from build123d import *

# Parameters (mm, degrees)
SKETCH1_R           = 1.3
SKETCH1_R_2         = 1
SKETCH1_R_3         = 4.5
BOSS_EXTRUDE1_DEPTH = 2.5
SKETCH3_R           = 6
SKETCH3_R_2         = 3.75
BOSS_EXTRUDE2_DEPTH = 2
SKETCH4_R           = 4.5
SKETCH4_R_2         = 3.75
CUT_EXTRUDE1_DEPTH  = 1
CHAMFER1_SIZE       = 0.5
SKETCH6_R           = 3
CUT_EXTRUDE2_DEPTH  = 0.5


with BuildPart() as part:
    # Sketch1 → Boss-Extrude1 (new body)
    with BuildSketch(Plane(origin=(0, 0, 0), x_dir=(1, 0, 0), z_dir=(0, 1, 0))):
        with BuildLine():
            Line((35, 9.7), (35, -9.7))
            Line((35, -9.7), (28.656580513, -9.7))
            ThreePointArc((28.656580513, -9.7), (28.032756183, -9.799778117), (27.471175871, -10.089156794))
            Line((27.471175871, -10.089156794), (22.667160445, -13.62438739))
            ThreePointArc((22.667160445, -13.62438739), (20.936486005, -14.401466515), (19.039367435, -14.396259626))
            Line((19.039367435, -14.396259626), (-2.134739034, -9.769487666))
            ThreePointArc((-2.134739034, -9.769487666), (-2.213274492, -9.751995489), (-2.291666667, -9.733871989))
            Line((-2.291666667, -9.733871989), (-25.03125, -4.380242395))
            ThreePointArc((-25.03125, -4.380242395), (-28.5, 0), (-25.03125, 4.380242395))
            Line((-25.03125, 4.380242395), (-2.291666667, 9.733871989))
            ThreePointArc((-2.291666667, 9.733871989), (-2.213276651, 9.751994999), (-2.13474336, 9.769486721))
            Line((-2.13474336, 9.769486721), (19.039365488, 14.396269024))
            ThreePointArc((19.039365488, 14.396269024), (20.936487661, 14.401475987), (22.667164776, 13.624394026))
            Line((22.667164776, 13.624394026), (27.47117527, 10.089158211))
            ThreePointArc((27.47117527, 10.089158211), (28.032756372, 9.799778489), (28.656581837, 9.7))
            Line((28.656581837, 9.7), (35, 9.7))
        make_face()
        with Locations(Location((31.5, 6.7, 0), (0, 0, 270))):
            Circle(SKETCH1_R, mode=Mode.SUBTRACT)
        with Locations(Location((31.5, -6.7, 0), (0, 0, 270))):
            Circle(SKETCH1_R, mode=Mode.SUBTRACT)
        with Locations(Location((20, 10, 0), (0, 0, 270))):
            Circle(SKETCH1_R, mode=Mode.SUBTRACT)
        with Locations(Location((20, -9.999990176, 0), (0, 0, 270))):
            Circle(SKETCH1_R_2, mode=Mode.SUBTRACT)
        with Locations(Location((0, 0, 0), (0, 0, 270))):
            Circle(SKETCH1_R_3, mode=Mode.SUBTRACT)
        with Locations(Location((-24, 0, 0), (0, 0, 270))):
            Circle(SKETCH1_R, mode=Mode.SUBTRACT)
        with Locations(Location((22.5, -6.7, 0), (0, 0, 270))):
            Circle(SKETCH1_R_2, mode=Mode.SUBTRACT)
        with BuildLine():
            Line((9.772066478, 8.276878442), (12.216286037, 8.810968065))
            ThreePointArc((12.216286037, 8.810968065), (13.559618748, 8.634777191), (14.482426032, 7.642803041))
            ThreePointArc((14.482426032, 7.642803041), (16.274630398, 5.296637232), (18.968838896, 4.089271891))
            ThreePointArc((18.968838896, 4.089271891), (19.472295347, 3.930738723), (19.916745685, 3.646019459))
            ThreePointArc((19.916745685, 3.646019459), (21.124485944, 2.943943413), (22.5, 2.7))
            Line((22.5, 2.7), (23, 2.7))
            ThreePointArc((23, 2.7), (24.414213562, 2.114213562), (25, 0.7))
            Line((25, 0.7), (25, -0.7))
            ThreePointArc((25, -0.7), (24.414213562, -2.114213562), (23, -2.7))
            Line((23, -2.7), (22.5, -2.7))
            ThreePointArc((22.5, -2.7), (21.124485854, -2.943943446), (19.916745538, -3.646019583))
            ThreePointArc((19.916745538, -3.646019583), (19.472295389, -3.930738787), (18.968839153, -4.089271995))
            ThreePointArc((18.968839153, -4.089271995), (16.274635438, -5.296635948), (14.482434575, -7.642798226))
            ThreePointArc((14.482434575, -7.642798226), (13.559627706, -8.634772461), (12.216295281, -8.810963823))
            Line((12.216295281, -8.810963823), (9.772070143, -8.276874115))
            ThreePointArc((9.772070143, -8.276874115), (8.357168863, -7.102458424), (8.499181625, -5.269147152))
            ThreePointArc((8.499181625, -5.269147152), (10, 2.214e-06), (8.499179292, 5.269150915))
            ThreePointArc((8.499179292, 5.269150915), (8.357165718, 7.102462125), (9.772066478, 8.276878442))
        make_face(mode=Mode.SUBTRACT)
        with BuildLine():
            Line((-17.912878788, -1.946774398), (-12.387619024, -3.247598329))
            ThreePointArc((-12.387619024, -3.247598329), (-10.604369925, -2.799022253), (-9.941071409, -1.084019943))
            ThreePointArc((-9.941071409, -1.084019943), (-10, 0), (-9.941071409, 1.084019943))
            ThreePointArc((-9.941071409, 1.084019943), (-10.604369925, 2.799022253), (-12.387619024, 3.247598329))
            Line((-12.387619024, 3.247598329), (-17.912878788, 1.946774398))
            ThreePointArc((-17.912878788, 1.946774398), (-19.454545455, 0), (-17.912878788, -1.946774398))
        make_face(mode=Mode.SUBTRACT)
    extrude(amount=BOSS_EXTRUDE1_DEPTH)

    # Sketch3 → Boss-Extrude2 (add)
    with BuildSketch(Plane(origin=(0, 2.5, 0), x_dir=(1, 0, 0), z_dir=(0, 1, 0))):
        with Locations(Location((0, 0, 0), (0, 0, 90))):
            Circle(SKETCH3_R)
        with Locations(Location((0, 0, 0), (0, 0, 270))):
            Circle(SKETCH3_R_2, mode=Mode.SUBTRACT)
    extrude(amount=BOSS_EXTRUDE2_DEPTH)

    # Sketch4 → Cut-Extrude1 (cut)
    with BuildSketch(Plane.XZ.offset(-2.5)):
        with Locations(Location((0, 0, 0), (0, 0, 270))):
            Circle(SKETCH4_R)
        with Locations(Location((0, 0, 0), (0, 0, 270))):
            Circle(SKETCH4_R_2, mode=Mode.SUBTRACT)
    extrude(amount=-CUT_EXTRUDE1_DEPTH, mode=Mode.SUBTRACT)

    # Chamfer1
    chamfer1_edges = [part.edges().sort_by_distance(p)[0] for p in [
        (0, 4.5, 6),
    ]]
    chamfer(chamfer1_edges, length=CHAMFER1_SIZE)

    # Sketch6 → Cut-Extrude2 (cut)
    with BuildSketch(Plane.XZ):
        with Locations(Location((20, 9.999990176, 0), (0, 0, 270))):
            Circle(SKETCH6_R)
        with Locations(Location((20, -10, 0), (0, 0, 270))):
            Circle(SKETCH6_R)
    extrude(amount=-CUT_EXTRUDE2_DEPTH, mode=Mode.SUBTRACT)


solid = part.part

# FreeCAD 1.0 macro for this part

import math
import FreeCAD as App
import Part
import Sketcher

V = App.Vector


def edges_at(feature, points):
    """Names of the edges that pass closest to the given points."""
    edges = feature.Shape.Edges
    near = lambda p: min(range(len(edges)), key=lambda i: edges[i].distToShape(Part.Vertex(*p))[0])
    return sorted({f"Edge{near(p) + 1}" for p in points})

doc = App.newDocument("Part")
body = doc.addObject("PartDesign::Body", "Body")

# Sketch on XZ plane
sketch1 = body.newObject("Sketcher::SketchObject", "Sketch")
sketch1.AttachmentSupport = (doc.getObject("XZ_Plane"), [""])
sketch1.MapMode = "FlatFace"
sketch1.addGeometry(Part.LineSegment(V(35, 9.7, 0), V(35, -9.7, 0)), False)
sketch1.addGeometry(Part.LineSegment(V(35, -9.7, 0), V(28.656582, -9.7, 0)), False)
sketch1.addGeometry(Part.ArcOfCircle(Part.Circle(V(28.656582, -11.7, 0), V(0, 0, 1), 2), math.radians(90), math.radians(126.349077)), False)
sketch1.addGeometry(Part.LineSegment(V(27.471175, -10.089158, 0), V(22.667165, -13.624394, 0)), False)
sketch1.addGeometry(Part.ArcOfCircle(Part.Circle(V(20, -10, 0), V(0, 0, 1), 4.5), math.radians(-102.326035), math.radians(-53.650923)), False)
sketch1.addGeometry(Part.LineSegment(V(19.039365, -14.396269, 0), V(-2.134743, -9.769487, 0)), False)
sketch1.addGeometry(Part.ArcOfCircle(Part.Circle(V(0.000005, 0.00002, 0), V(0, 0, 1), 10.000021), math.radians(-103.248014), math.radians(-102.326036)), False)
sketch1.addGeometry(Part.LineSegment(V(-2.291667, -9.733872, 0), V(-25.03125, -4.380242, 0)), False)
sketch1.addGeometry(Part.ArcOfCircle(Part.Circle(V(-24, 0, 0), V(0, 0, 1), 4.5), math.radians(103.248015), math.radians(256.751985)), False)
sketch1.addGeometry(Part.LineSegment(V(-25.03125, 4.380242, 0), V(-2.291667, 9.733872, 0)), False)
sketch1.addGeometry(Part.ArcOfCircle(Part.Circle(V(0.000004, -0.000016, 0), V(0, 0, 1), 10.000017), math.radians(102.326011), math.radians(103.248014)), False)
sketch1.addGeometry(Part.LineSegment(V(-2.134739, 9.769488, 0), V(19.039367, 14.39626, 0)), False)
sketch1.addGeometry(Part.ArcOfCircle(Part.Circle(V(20, 9.99999, 0), V(0, 0, 1), 4.5), math.radians(53.650991), math.radians(102.32601)), False)
sketch1.addGeometry(Part.LineSegment(V(22.66716, 13.624387, 0), V(27.471176, 10.089157, 0)), False)
sketch1.addGeometry(Part.ArcOfCircle(Part.Circle(V(28.656581, 11.7, 0), V(0, 0, 1), 2), math.radians(-126.349009), math.radians(-90)), False)
sketch1.addGeometry(Part.LineSegment(V(28.656581, 9.7, 0), V(35, 9.7, 0)), False)
sketch1.addGeometry(Part.Circle(V(20, 9.99999, 0), V(0, 0, 1), 1), False)
sketch1.addGeometry(Part.Circle(V(31.5, 6.7, 0), V(0, 0, 1), 1.3), False)
sketch1.addGeometry(Part.Circle(V(22.5, 6.7, 0), V(0, 0, 1), 1), False)
sketch1.addGeometry(Part.LineSegment(V(9.772066, -8.276878, 0), V(12.216286, -8.810968, 0)), False)
sketch1.addGeometry(Part.ArcOfCircle(Part.Circle(V(12.643235, -6.857071, 0), V(0, 0, 1), 2), math.radians(-102.326035), math.radians(-23.132958)), False)
sketch1.addGeometry(Part.ArcOfCircle(Part.Circle(V(20, -10, 0), V(0, 0, 1), 6), math.radians(99.895992), math.radians(156.867042)), False)
sketch1.addGeometry(Part.ArcOfCircle(Part.Circle(V(18.625119, -2.119029, 0), V(0, 0, 1), 2), math.radians(-80.104008), math.radians(-49.773298)), False)
sketch1.addGeometry(Part.ArcOfCircle(Part.Circle(V(22.5, -6.7, 0), V(0, 0, 1), 4), math.radians(90), math.radians(130.226702)), False)
sketch1.addGeometry(Part.LineSegment(V(22.5, -2.7, 0), V(23, -2.7, 0)), False)
sketch1.addGeometry(Part.ArcOfCircle(Part.Circle(V(23, -0.7, 0), V(0, 0, 1), 2), math.radians(-90), math.radians(0)), False)
sketch1.addGeometry(Part.LineSegment(V(25, -0.7, 0), V(25, 0.7, 0)), False)
sketch1.addGeometry(Part.ArcOfCircle(Part.Circle(V(23, 0.7, 0), V(0, 0, 1), 2), math.radians(0), math.radians(90)), False)
sketch1.addGeometry(Part.LineSegment(V(23, 2.7, 0), V(22.5, 2.7, 0)), False)
sketch1.addGeometry(Part.ArcOfCircle(Part.Circle(V(22.5, 6.7, 0), V(0, 0, 1), 4), math.radians(-130.226705), math.radians(-90)), False)
sketch1.addGeometry(Part.ArcOfCircle(Part.Circle(V(18.625118, 2.119029, 0), V(0, 0, 1), 2), math.radians(49.773295), math.radians(80.103994)), False)
sketch1.addGeometry(Part.ArcOfCircle(Part.Circle(V(20, 9.99999, 0), V(0, 0, 1), 5.99999), math.radians(-156.867054), math.radians(-99.896006)), False)
sketch1.addGeometry(Part.ArcOfCircle(Part.Circle(V(12.643243, 6.857066, 0), V(0, 0, 1), 2), math.radians(23.132946), math.radians(102.32601)), False)
sketch1.addGeometry(Part.LineSegment(V(12.216295, 8.810964, 0), V(9.77207, 8.276874, 0)), False)
sketch1.addGeometry(Part.ArcOfCircle(Part.Circle(V(10.199018, 6.322977, 0), V(0, 0, 1), 2), math.radians(102.32601), math.radians(211.797231)), False)
sketch1.addGeometry(Part.ArcOfCircle(Part.Circle(V(0, 0, 0), V(0, 0, 1), 10), math.radians(-31.797256), math.radians(31.797231)), False)
sketch1.addGeometry(Part.ArcOfCircle(Part.Circle(V(10.199015, -6.322981, 0), V(0, 0, 1), 2), math.radians(148.202744), math.radians(257.673965)), False)
sketch1.addGeometry(Part.Circle(V(0, 0, 0), V(0, 0, 1), 4.5), False)
sketch1.addGeometry(Part.ArcOfCircle(Part.Circle(V(-17.454545, 0, 0), V(0, 0, 1), 2), math.radians(103.248015), math.radians(256.751985)), False)
sketch1.addGeometry(Part.LineSegment(V(-17.912879, -1.946774, 0), V(-12.387619, -3.247598, 0)), False)
sketch1.addGeometry(Part.ArcOfCircle(Part.Circle(V(-11.929286, -1.300824, 0), V(0, 0, 1), 2), math.radians(-103.248015), math.radians(6.223206)), False)
sketch1.addGeometry(Part.ArcOfCircle(Part.Circle(V(0, 0, 0), V(0, 0, 1), 10), math.radians(173.776794), math.radians(186.223206)), False)
sketch1.addGeometry(Part.ArcOfCircle(Part.Circle(V(-11.929286, 1.300824, 0), V(0, 0, 1), 2), math.radians(-6.223206), math.radians(103.248015)), False)
sketch1.addGeometry(Part.LineSegment(V(-12.387619, 3.247598, 0), V(-17.912879, 1.946774, 0)), False)
sketch1.addGeometry(Part.Circle(V(-24, 0, 0), V(0, 0, 1), 1.3), False)
sketch1.addGeometry(Part.Circle(V(31.5, -6.7, 0), V(0, 0, 1), 1.3), False)
sketch1.addGeometry(Part.Circle(V(20, -10, 0), V(0, 0, 1), 1.3), False)
sketch1.addConstraint(Sketcher.Constraint("Coincident", 0, 2, 1, 1))
sketch1.addConstraint(Sketcher.Constraint("Tangent", 1, 2, 2, 1))
sketch1.addConstraint(Sketcher.Constraint("Tangent", 2, 2, 3, 1))
sketch1.addConstraint(Sketcher.Constraint("Tangent", 3, 2, 4, 2))
sketch1.addConstraint(Sketcher.Constraint("Tangent", 4, 1, 5, 1))
sketch1.addConstraint(Sketcher.Constraint("Tangent", 5, 2, 6, 2))
sketch1.addConstraint(Sketcher.Constraint("Tangent", 6, 1, 7, 1))
sketch1.addConstraint(Sketcher.Constraint("Tangent", 7, 2, 8, 2))
sketch1.addConstraint(Sketcher.Constraint("Tangent", 8, 1, 9, 1))
sketch1.addConstraint(Sketcher.Constraint("Tangent", 9, 2, 10, 2))
sketch1.addConstraint(Sketcher.Constraint("Tangent", 10, 1, 11, 1))
sketch1.addConstraint(Sketcher.Constraint("Tangent", 11, 2, 12, 2))
sketch1.addConstraint(Sketcher.Constraint("Tangent", 12, 1, 13, 1))
sketch1.addConstraint(Sketcher.Constraint("Tangent", 13, 2, 14, 1))
sketch1.addConstraint(Sketcher.Constraint("Tangent", 14, 2, 15, 1))
sketch1.addConstraint(Sketcher.Constraint("Coincident", 15, 2, 0, 1))
sketch1.addConstraint(Sketcher.Constraint("Tangent", 19, 2, 20, 1))
sketch1.addConstraint(Sketcher.Constraint("Tangent", 20, 2, 21, 2))
sketch1.addConstraint(Sketcher.Constraint("Tangent", 21, 1, 22, 1))
sketch1.addConstraint(Sketcher.Constraint("Tangent", 22, 2, 23, 2))
sketch1.addConstraint(Sketcher.Constraint("Tangent", 23, 1, 24, 1))
sketch1.addConstraint(Sketcher.Constraint("Tangent", 24, 2, 25, 1))
sketch1.addConstraint(Sketcher.Constraint("Tangent", 25, 2, 26, 1))
sketch1.addConstraint(Sketcher.Constraint("Tangent", 26, 2, 27, 1))
sketch1.addConstraint(Sketcher.Constraint("Tangent", 27, 2, 28, 1))
sketch1.addConstraint(Sketcher.Constraint("Tangent", 28, 2, 29, 2))
sketch1.addConstraint(Sketcher.Constraint("Tangent", 29, 1, 30, 1))
sketch1.addConstraint(Sketcher.Constraint("Tangent", 30, 2, 31, 2))
sketch1.addConstraint(Sketcher.Constraint("Tangent", 31, 1, 32, 1))
sketch1.addConstraint(Sketcher.Constraint("Tangent", 32, 2, 33, 1))
sketch1.addConstraint(Sketcher.Constraint("Tangent", 33, 2, 34, 1))
sketch1.addConstraint(Sketcher.Constraint("Tangent", 34, 2, 35, 2))
sketch1.addConstraint(Sketcher.Constraint("Tangent", 35, 1, 36, 1))
sketch1.addConstraint(Sketcher.Constraint("Tangent", 36, 2, 19, 1))
sketch1.addConstraint(Sketcher.Constraint("Tangent", 38, 2, 39, 1))
sketch1.addConstraint(Sketcher.Constraint("Tangent", 39, 2, 40, 1))
sketch1.addConstraint(Sketcher.Constraint("Tangent", 40, 2, 41, 2))
sketch1.addConstraint(Sketcher.Constraint("Tangent", 41, 1, 42, 1))
sketch1.addConstraint(Sketcher.Constraint("Tangent", 42, 2, 43, 1))
sketch1.addConstraint(Sketcher.Constraint("Tangent", 43, 2, 38, 1))
sketch1.addConstraint(Sketcher.Constraint("Vertical", 0))
sketch1.addConstraint(Sketcher.Constraint("Horizontal", 1))
sketch1.addConstraint(Sketcher.Constraint("Horizontal", 15))
sketch1.addConstraint(Sketcher.Constraint("Horizontal", 24))
sketch1.addConstraint(Sketcher.Constraint("Vertical", 26))
sketch1.addConstraint(Sketcher.Constraint("Horizontal", 28))
sketch1.addConstraint(Sketcher.Constraint("Coincident", 35, 3, -1, 1))
sketch1.addConstraint(Sketcher.Constraint("Coincident", 37, 3, -1, 1))
sketch1.addConstraint(Sketcher.Constraint("Coincident", 41, 3, -1, 1))
sketch1.addConstraint(Sketcher.Constraint("Coincident", 16, 3, 12, 3))
sketch1.addConstraint(Sketcher.Constraint("Coincident", 21, 3, 4, 3))
sketch1.addConstraint(Sketcher.Constraint("Coincident", 29, 3, 18, 3))
sketch1.addConstraint(Sketcher.Constraint("Coincident", 31, 3, 12, 3))
sketch1.addConstraint(Sketcher.Constraint("Coincident", 44, 3, 8, 3))
sketch1.addConstraint(Sketcher.Constraint("Coincident", 46, 3, 4, 3))
sketch1.addConstraint(Sketcher.Constraint("Equal", 4, 8))
sketch1.addConstraint(Sketcher.Constraint("Equal", 8, 12))
sketch1.addConstraint(Sketcher.Constraint("Equal", 2, 14))
sketch1.addConstraint(Sketcher.Constraint("Equal", 16, 18))
sketch1.addConstraint(Sketcher.Constraint("Equal", 14, 20))
sketch1.addConstraint(Sketcher.Constraint("Equal", 20, 22))
sketch1.addConstraint(Sketcher.Constraint("Equal", 22, 25))
sketch1.addConstraint(Sketcher.Constraint("Equal", 25, 27))
sketch1.addConstraint(Sketcher.Constraint("Equal", 23, 29))
sketch1.addConstraint(Sketcher.Constraint("Equal", 27, 30))
sketch1.addConstraint(Sketcher.Constraint("Equal", 30, 32))
sketch1.addConstraint(Sketcher.Constraint("Equal", 32, 34))
sketch1.addConstraint(Sketcher.Constraint("Equal", 34, 36))
sketch1.addConstraint(Sketcher.Constraint("Equal", 12, 37))
sketch1.addConstraint(Sketcher.Constraint("Equal", 36, 38))
sketch1.addConstraint(Sketcher.Constraint("Equal", 38, 40))
sketch1.addConstraint(Sketcher.Constraint("Equal", 35, 41))
sketch1.addConstraint(Sketcher.Constraint("Equal", 40, 42))
sketch1.addConstraint(Sketcher.Constraint("Equal", 17, 44))
sketch1.addConstraint(Sketcher.Constraint("Equal", 44, 45))
sketch1.addConstraint(Sketcher.Constraint("Equal", 45, 46))
sketch1.addConstraint(Sketcher.Constraint("Symmetric", 6, 3, 10, 3, -1, 1))
sketch1.addConstraint(Sketcher.Constraint("Symmetric", 4, 3, 12, 3, -1))
sketch1.addConstraint(Sketcher.Constraint("Symmetric", 2, 3, 14, 3, -1))
sketch1.addConstraint(Sketcher.Constraint("Symmetric", 18, 3, 23, 3, -1))
sketch1.addConstraint(Sketcher.Constraint("Symmetric", 20, 3, 32, 3, -1))
sketch1.addConstraint(Sketcher.Constraint("Symmetric", 17, 3, 45, 3, -1))
sketch1.addConstraint(Sketcher.Constraint("Symmetric", 7, 2, 8, 1, -1))
sketch1.addConstraint(Sketcher.Constraint("Symmetric", 39, 2, 42, 2, -1))
sketch1.addConstraint(Sketcher.Constraint("Parallel", 5, 19))
sketch1.addConstraint(Sketcher.Constraint("Parallel", 11, 33))
sketch1.addConstraint(Sketcher.Constraint("Parallel", 7, 39))
sketch1.addConstraint(Sketcher.Constraint("Horizontal", 17, 3, 18, 3))
sketch1.addConstraint(Sketcher.Constraint("Vertical", 6, 3, 10, 3))
sketch1.addConstraint(Sketcher.Constraint("Diameter", 16, 2.0))
sketch1.addConstraint(Sketcher.Constraint("Diameter", 37, 9.0))
sketch1.addConstraint(Sketcher.Constraint("Radius", 2, 2.0))
sketch1.addConstraint(Sketcher.Constraint("Radius", 21, 6.0))
sketch1.addConstraint(Sketcher.Constraint("Radius", 23, 4.0))
sketch1.addConstraint(Sketcher.Constraint("Radius", 35, 10.0))
sketch1.addConstraint(Sketcher.Constraint("Diameter", 17, 2.6))
sketch1.addConstraint(Sketcher.Constraint("DistanceX", 24, 1, 24, 2, 0.5))
sketch1.addConstraint(Sketcher.Constraint("DistanceY", 0, 2, 0, 1, 19.4))
sketch1.addConstraint(Sketcher.Constraint("DistanceY", 26, 1, 26, 2, 1.4))
sketch1.addConstraint(Sketcher.Constraint("DistanceX", -1, 1, 4, 3, 20.0))
sketch1.addConstraint(Sketcher.Constraint("DistanceY", 4, 3, -1, 1, 10.0))
sketch1.addConstraint(Sketcher.Constraint("DistanceX", 8, 3, -1, 1, 24.0))
sketch1.addConstraint(Sketcher.Constraint("DistanceX", -1, 1, 25, 3, 23.0))
sketch1.addConstraint(Sketcher.Constraint("DistanceX", -1, 1, 0, 2, 35.0))
sketch1.addConstraint(Sketcher.Constraint("DistanceX", -1, 1, 17, 3, 31.5))
sketch1.addConstraint(Sketcher.Constraint("Radius", 6, 10.000021))
sketch1.addConstraint(Sketcher.Constraint("DistanceX", 1, 2, 1, 1, 6.343418))
sketch1.addConstraint(Sketcher.Constraint("DistanceY", -1, 1, 31, 1, 7.642798))
sketch1.addConstraint(Sketcher.Constraint("DistanceY", 39, 2, -1, 1, 3.247598))
sketch1.addConstraint(Sketcher.Constraint("Distance", 19, 2.501891))
pad1 = body.newObject("PartDesign::Pad", "Pad")
pad1.Profile = sketch1
pad1.Length = 2.5
pad1.Reversed = True

# Sketch on XZ plane
sketch2 = body.newObject("Sketcher::SketchObject", "Sketch001")
sketch2.AttachmentSupport = (doc.getObject("XZ_Plane"), [""])
sketch2.MapMode = "FlatFace"
sketch2.AttachmentOffset = App.Placement(V(0, 0, -2.5), App.Rotation())
sketch2.addGeometry(Part.Circle(V(0, 0, 0), V(0, 0, 1), 6), False)
sketch2.addGeometry(Part.Circle(V(0, 0, 0), V(0, 0, 1), 3.8), False)
sketch2.addConstraint(Sketcher.Constraint("Coincident", 0, 3, -1, 1))
sketch2.addConstraint(Sketcher.Constraint("Coincident", 1, 3, -1, 1))
sketch2.addConstraint(Sketcher.Constraint("Diameter", 0, 12.0))
sketch2.addConstraint(Sketcher.Constraint("Diameter", 1, 7.5))
pad2 = body.newObject("PartDesign::Pad", "Pad001")
pad2.Profile = sketch2
pad2.Length = 2
pad2.Reversed = True

# Sketch on XZ plane
sketch3 = body.newObject("Sketcher::SketchObject", "Sketch002")
sketch3.AttachmentSupport = (doc.getObject("XZ_Plane"), [""])
sketch3.MapMode = "FlatFace"
sketch3.AttachmentOffset = App.Placement(V(0, 0, -2.5), App.Rotation())
sketch3.addGeometry(Part.Circle(V(0, 0, 0), V(0, 0, 1), 4.5), False)
sketch3.addGeometry(Part.Circle(V(0, 0, 0), V(0, 0, 1), 3.8), False)
sketch3.addConstraint(Sketcher.Constraint("Coincident", 0, 3, -1, 1))
sketch3.addConstraint(Sketcher.Constraint("Coincident", 1, 3, -1, 1))
sketch3.addConstraint(Sketcher.Constraint("Diameter", 0, 9.0))
sketch3.addConstraint(Sketcher.Constraint("Diameter", 1, 7.5))
pocket1 = body.newObject("PartDesign::Pocket", "Pocket")
pocket1.Profile = sketch3
pocket1.Length = 1
doc.recompute()

chamfer = body.newObject("PartDesign::Chamfer", "Chamfer")
chamfer.Base = (pocket1, edges_at(pocket1, [(0, 4.5, 6)]))
chamfer.Size = 0.5

# Sketch on XZ plane
sketch4 = body.newObject("Sketcher::SketchObject", "Sketch003")
sketch4.AttachmentSupport = (doc.getObject("XZ_Plane"), [""])
sketch4.MapMode = "FlatFace"
sketch4.addGeometry(Part.Circle(V(20, 10, 0), V(0, 0, 1), 3), False)
sketch4.addGeometry(Part.Circle(V(20, -10, 0), V(0, 0, 1), 3), False)
sketch4.addConstraint(Sketcher.Constraint("Equal", 0, 1))
sketch4.addConstraint(Sketcher.Constraint("Symmetric", 0, 3, 1, 3, -1))
sketch4.addConstraint(Sketcher.Constraint("Diameter", 0, 6.0))
sketch4.addConstraint(Sketcher.Constraint("DistanceX", -1, 1, 0, 3, 20.0))
sketch4.addConstraint(Sketcher.Constraint("DistanceY", 1, 3, -1, 1, 10.0))
pocket2 = body.newObject("PartDesign::Pocket", "Pocket001")
pocket2.Profile = sketch4
pocket2.Length = 0.5

doc.recompute()
